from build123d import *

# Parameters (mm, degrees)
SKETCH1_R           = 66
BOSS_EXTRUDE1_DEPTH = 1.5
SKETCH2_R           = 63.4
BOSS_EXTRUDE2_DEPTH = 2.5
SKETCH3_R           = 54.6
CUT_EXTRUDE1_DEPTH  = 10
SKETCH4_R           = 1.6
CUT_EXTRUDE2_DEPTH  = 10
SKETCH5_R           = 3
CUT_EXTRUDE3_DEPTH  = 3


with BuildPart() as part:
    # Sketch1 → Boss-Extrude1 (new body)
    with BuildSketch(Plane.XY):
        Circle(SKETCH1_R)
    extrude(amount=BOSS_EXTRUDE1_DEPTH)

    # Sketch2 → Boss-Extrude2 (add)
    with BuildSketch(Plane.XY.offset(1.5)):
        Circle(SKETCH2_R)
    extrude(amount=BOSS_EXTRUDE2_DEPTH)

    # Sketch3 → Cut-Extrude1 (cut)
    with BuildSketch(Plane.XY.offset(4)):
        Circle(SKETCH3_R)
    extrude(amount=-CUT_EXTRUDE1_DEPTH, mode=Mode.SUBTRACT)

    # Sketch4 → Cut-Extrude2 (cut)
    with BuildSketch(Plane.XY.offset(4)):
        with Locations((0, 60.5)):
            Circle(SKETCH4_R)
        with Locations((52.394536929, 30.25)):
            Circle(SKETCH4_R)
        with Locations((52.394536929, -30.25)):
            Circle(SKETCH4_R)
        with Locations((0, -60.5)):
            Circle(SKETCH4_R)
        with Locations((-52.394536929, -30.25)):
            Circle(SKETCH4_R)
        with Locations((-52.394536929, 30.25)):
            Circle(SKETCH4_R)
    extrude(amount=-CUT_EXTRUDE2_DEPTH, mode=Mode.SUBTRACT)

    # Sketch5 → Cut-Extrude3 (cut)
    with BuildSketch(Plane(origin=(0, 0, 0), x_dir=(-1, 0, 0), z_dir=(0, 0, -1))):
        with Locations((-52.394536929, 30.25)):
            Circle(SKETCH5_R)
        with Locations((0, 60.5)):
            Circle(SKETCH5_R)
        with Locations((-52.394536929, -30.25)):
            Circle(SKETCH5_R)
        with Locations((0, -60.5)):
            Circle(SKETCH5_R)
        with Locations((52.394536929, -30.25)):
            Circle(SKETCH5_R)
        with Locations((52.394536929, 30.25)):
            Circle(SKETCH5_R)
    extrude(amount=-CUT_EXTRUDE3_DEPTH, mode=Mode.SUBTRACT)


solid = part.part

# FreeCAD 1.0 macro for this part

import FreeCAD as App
import Part
import Sketcher

V = App.Vector

doc = App.newDocument("Part")
body = doc.addObject("PartDesign::Body", "Body")

# Sketch on XY plane
sketch1 = body.newObject("Sketcher::SketchObject", "Sketch")
sketch1.AttachmentSupport = (doc.getObject("XY_Plane"), [""])
sketch1.MapMode = "FlatFace"
sketch1.addGeometry(Part.Circle(V(0, 0, 0), V(0, 0, 1), 66), False)
sketch1.addConstraint([
    Sketcher.Constraint("Coincident", 0, 3, -1, 1),
    Sketcher.Constraint("Diameter", 0, 132.0),
])
pad1 = body.newObject("PartDesign::Pad", "Pad")
pad1.Profile = sketch1
pad1.Length = 1.5

# Sketch on XY plane
sketch2 = body.newObject("Sketcher::SketchObject", "Sketch001")
sketch2.AttachmentSupport = (doc.getObject("XY_Plane"), [""])
sketch2.MapMode = "FlatFace"
sketch2.AttachmentOffset = App.Placement(V(0, 0, 1.5), App.Rotation())
sketch2.addGeometry(Part.Circle(V(0, 0, 0), V(0, 0, 1), 63.4), False)
sketch2.addConstraint([
    Sketcher.Constraint("Coincident", 0, 3, -1, 1),
    Sketcher.Constraint("Diameter", 0, 126.8),
])
pad2 = body.newObject("PartDesign::Pad", "Pad001")
pad2.Profile = sketch2
pad2.Length = 2.5

# Sketch on XY plane
sketch3 = body.newObject("Sketcher::SketchObject", "Sketch002")
sketch3.AttachmentSupport = (doc.getObject("XY_Plane"), [""])
sketch3.MapMode = "FlatFace"
sketch3.AttachmentOffset = App.Placement(V(0, 0, 4), App.Rotation())
sketch3.addGeometry(Part.Circle(V(0, 0, 0), V(0, 0, 1), 54.6), False)
sketch3.addConstraint([
    Sketcher.Constraint("Coincident", 0, 3, -1, 1),
    Sketcher.Constraint("Diameter", 0, 109.2),
])
pocket1 = body.newObject("PartDesign::Pocket", "Pocket")
pocket1.Profile = sketch3
pocket1.Length = 10

# Sketch on XY plane
sketch4 = body.newObject("Sketcher::SketchObject", "Sketch003")
sketch4.AttachmentSupport = (doc.getObject("XY_Plane"), [""])
sketch4.MapMode = "FlatFace"
sketch4.AttachmentOffset = App.Placement(V(0, 0, 4), App.Rotation())
sketch4.addGeometry([
    Part.Circle(V(0, 60.5, 0), V(0, 0, 1), 1.6),  # 0
    Part.Circle(V(52.394537, 30.25, 0), V(0, 0, 1), 1.6),  # 1
    Part.Circle(V(52.394537, -30.25, 0), V(0, 0, 1), 1.6),  # 2
    Part.Circle(V(0, -60.5, 0), V(0, 0, 1), 1.6),  # 3
    Part.Circle(V(-52.394537, -30.25, 0), V(0, 0, 1), 1.6),  # 4
    Part.Circle(V(-52.394537, 30.25, 0), V(0, 0, 1), 1.6),  # 5
], False)
sketch4.addConstraint([
    Sketcher.Constraint("Equal", 0, 1),
    Sketcher.Constraint("Equal", 1, 2),
    Sketcher.Constraint("Equal", 2, 3),
    Sketcher.Constraint("Equal", 3, 4),
    Sketcher.Constraint("Equal", 4, 5),
    Sketcher.Constraint("Symmetric", 0, 3, 3, 3, -1, 1),
    Sketcher.Constraint("Symmetric", 1, 3, 4, 3, -1, 1),
    Sketcher.Constraint("Symmetric", 2, 3, 5, 3, -1, 1),
    Sketcher.Constraint("Symmetric", 2, 3, 4, 3, -2),
    Sketcher.Constraint("PointOnObject", 0, 3, -2),
    Sketcher.Constraint("Diameter", 0, 3.2),
    Sketcher.Constraint("DistanceY", 3, 3, 0, 3, 121.0),
    Sketcher.Constraint("DistanceY", 2, 3, 1, 3, 60.5),
    Sketcher.Constraint("DistanceX", -1, 1, 1, 3, 52.394537),
])
pocket2 = body.newObject("PartDesign::Pocket", "Pocket001")
pocket2.Profile = sketch4
pocket2.Length = 10

# Sketch on XY plane
sketch5 = body.newObject("Sketcher::SketchObject", "Sketch004")
sketch5.AttachmentSupport = (doc.getObject("XY_Plane"), [""])
sketch5.MapMode = "FlatFace"
sketch5.addGeometry([
    Part.Circle(V(52.394537, 30.25, 0), V(0, 0, 1), 3),  # 0
    Part.Circle(V(0, 60.5, 0), V(0, 0, 1), 3),  # 1
    Part.Circle(V(52.394537, -30.25, 0), V(0, 0, 1), 3),  # 2
    Part.Circle(V(0, -60.5, 0), V(0, 0, 1), 3),  # 3
    Part.Circle(V(-52.394537, -30.25, 0), V(0, 0, 1), 3),  # 4
    Part.Circle(V(-52.394537, 30.25, 0), V(0, 0, 1), 3),  # 5
], False)
sketch5.addConstraint([
    Sketcher.Constraint("Equal", 0, 1),
    Sketcher.Constraint("Equal", 1, 2),
    Sketcher.Constraint("Equal", 2, 3),
    Sketcher.Constraint("Equal", 3, 4),
    Sketcher.Constraint("Equal", 4, 5),
    Sketcher.Constraint("Symmetric", 1, 3, 3, 3, -1, 1),
    Sketcher.Constraint("Symmetric", 0, 3, 4, 3, -1, 1),
    Sketcher.Constraint("Symmetric", 2, 3, 5, 3, -1, 1),
    Sketcher.Constraint("Symmetric", 2, 3, 4, 3, -2),
    Sketcher.Constraint("PointOnObject", 1, 3, -2),
    Sketcher.Constraint("Diameter", 0, 6.0),
    Sketcher.Constraint("DistanceY", 3, 3, 1, 3, 121.0),
    Sketcher.Constraint("DistanceY", 2, 3, 0, 3, 60.5),
    Sketcher.Constraint("DistanceX", -1, 1, 0, 3, 52.394537),
])
pocket3 = body.newObject("PartDesign::Pocket", "Pocket002")
pocket3.Profile = sketch5
pocket3.Length = 3
pocket3.Reversed = True

doc.recompute()
